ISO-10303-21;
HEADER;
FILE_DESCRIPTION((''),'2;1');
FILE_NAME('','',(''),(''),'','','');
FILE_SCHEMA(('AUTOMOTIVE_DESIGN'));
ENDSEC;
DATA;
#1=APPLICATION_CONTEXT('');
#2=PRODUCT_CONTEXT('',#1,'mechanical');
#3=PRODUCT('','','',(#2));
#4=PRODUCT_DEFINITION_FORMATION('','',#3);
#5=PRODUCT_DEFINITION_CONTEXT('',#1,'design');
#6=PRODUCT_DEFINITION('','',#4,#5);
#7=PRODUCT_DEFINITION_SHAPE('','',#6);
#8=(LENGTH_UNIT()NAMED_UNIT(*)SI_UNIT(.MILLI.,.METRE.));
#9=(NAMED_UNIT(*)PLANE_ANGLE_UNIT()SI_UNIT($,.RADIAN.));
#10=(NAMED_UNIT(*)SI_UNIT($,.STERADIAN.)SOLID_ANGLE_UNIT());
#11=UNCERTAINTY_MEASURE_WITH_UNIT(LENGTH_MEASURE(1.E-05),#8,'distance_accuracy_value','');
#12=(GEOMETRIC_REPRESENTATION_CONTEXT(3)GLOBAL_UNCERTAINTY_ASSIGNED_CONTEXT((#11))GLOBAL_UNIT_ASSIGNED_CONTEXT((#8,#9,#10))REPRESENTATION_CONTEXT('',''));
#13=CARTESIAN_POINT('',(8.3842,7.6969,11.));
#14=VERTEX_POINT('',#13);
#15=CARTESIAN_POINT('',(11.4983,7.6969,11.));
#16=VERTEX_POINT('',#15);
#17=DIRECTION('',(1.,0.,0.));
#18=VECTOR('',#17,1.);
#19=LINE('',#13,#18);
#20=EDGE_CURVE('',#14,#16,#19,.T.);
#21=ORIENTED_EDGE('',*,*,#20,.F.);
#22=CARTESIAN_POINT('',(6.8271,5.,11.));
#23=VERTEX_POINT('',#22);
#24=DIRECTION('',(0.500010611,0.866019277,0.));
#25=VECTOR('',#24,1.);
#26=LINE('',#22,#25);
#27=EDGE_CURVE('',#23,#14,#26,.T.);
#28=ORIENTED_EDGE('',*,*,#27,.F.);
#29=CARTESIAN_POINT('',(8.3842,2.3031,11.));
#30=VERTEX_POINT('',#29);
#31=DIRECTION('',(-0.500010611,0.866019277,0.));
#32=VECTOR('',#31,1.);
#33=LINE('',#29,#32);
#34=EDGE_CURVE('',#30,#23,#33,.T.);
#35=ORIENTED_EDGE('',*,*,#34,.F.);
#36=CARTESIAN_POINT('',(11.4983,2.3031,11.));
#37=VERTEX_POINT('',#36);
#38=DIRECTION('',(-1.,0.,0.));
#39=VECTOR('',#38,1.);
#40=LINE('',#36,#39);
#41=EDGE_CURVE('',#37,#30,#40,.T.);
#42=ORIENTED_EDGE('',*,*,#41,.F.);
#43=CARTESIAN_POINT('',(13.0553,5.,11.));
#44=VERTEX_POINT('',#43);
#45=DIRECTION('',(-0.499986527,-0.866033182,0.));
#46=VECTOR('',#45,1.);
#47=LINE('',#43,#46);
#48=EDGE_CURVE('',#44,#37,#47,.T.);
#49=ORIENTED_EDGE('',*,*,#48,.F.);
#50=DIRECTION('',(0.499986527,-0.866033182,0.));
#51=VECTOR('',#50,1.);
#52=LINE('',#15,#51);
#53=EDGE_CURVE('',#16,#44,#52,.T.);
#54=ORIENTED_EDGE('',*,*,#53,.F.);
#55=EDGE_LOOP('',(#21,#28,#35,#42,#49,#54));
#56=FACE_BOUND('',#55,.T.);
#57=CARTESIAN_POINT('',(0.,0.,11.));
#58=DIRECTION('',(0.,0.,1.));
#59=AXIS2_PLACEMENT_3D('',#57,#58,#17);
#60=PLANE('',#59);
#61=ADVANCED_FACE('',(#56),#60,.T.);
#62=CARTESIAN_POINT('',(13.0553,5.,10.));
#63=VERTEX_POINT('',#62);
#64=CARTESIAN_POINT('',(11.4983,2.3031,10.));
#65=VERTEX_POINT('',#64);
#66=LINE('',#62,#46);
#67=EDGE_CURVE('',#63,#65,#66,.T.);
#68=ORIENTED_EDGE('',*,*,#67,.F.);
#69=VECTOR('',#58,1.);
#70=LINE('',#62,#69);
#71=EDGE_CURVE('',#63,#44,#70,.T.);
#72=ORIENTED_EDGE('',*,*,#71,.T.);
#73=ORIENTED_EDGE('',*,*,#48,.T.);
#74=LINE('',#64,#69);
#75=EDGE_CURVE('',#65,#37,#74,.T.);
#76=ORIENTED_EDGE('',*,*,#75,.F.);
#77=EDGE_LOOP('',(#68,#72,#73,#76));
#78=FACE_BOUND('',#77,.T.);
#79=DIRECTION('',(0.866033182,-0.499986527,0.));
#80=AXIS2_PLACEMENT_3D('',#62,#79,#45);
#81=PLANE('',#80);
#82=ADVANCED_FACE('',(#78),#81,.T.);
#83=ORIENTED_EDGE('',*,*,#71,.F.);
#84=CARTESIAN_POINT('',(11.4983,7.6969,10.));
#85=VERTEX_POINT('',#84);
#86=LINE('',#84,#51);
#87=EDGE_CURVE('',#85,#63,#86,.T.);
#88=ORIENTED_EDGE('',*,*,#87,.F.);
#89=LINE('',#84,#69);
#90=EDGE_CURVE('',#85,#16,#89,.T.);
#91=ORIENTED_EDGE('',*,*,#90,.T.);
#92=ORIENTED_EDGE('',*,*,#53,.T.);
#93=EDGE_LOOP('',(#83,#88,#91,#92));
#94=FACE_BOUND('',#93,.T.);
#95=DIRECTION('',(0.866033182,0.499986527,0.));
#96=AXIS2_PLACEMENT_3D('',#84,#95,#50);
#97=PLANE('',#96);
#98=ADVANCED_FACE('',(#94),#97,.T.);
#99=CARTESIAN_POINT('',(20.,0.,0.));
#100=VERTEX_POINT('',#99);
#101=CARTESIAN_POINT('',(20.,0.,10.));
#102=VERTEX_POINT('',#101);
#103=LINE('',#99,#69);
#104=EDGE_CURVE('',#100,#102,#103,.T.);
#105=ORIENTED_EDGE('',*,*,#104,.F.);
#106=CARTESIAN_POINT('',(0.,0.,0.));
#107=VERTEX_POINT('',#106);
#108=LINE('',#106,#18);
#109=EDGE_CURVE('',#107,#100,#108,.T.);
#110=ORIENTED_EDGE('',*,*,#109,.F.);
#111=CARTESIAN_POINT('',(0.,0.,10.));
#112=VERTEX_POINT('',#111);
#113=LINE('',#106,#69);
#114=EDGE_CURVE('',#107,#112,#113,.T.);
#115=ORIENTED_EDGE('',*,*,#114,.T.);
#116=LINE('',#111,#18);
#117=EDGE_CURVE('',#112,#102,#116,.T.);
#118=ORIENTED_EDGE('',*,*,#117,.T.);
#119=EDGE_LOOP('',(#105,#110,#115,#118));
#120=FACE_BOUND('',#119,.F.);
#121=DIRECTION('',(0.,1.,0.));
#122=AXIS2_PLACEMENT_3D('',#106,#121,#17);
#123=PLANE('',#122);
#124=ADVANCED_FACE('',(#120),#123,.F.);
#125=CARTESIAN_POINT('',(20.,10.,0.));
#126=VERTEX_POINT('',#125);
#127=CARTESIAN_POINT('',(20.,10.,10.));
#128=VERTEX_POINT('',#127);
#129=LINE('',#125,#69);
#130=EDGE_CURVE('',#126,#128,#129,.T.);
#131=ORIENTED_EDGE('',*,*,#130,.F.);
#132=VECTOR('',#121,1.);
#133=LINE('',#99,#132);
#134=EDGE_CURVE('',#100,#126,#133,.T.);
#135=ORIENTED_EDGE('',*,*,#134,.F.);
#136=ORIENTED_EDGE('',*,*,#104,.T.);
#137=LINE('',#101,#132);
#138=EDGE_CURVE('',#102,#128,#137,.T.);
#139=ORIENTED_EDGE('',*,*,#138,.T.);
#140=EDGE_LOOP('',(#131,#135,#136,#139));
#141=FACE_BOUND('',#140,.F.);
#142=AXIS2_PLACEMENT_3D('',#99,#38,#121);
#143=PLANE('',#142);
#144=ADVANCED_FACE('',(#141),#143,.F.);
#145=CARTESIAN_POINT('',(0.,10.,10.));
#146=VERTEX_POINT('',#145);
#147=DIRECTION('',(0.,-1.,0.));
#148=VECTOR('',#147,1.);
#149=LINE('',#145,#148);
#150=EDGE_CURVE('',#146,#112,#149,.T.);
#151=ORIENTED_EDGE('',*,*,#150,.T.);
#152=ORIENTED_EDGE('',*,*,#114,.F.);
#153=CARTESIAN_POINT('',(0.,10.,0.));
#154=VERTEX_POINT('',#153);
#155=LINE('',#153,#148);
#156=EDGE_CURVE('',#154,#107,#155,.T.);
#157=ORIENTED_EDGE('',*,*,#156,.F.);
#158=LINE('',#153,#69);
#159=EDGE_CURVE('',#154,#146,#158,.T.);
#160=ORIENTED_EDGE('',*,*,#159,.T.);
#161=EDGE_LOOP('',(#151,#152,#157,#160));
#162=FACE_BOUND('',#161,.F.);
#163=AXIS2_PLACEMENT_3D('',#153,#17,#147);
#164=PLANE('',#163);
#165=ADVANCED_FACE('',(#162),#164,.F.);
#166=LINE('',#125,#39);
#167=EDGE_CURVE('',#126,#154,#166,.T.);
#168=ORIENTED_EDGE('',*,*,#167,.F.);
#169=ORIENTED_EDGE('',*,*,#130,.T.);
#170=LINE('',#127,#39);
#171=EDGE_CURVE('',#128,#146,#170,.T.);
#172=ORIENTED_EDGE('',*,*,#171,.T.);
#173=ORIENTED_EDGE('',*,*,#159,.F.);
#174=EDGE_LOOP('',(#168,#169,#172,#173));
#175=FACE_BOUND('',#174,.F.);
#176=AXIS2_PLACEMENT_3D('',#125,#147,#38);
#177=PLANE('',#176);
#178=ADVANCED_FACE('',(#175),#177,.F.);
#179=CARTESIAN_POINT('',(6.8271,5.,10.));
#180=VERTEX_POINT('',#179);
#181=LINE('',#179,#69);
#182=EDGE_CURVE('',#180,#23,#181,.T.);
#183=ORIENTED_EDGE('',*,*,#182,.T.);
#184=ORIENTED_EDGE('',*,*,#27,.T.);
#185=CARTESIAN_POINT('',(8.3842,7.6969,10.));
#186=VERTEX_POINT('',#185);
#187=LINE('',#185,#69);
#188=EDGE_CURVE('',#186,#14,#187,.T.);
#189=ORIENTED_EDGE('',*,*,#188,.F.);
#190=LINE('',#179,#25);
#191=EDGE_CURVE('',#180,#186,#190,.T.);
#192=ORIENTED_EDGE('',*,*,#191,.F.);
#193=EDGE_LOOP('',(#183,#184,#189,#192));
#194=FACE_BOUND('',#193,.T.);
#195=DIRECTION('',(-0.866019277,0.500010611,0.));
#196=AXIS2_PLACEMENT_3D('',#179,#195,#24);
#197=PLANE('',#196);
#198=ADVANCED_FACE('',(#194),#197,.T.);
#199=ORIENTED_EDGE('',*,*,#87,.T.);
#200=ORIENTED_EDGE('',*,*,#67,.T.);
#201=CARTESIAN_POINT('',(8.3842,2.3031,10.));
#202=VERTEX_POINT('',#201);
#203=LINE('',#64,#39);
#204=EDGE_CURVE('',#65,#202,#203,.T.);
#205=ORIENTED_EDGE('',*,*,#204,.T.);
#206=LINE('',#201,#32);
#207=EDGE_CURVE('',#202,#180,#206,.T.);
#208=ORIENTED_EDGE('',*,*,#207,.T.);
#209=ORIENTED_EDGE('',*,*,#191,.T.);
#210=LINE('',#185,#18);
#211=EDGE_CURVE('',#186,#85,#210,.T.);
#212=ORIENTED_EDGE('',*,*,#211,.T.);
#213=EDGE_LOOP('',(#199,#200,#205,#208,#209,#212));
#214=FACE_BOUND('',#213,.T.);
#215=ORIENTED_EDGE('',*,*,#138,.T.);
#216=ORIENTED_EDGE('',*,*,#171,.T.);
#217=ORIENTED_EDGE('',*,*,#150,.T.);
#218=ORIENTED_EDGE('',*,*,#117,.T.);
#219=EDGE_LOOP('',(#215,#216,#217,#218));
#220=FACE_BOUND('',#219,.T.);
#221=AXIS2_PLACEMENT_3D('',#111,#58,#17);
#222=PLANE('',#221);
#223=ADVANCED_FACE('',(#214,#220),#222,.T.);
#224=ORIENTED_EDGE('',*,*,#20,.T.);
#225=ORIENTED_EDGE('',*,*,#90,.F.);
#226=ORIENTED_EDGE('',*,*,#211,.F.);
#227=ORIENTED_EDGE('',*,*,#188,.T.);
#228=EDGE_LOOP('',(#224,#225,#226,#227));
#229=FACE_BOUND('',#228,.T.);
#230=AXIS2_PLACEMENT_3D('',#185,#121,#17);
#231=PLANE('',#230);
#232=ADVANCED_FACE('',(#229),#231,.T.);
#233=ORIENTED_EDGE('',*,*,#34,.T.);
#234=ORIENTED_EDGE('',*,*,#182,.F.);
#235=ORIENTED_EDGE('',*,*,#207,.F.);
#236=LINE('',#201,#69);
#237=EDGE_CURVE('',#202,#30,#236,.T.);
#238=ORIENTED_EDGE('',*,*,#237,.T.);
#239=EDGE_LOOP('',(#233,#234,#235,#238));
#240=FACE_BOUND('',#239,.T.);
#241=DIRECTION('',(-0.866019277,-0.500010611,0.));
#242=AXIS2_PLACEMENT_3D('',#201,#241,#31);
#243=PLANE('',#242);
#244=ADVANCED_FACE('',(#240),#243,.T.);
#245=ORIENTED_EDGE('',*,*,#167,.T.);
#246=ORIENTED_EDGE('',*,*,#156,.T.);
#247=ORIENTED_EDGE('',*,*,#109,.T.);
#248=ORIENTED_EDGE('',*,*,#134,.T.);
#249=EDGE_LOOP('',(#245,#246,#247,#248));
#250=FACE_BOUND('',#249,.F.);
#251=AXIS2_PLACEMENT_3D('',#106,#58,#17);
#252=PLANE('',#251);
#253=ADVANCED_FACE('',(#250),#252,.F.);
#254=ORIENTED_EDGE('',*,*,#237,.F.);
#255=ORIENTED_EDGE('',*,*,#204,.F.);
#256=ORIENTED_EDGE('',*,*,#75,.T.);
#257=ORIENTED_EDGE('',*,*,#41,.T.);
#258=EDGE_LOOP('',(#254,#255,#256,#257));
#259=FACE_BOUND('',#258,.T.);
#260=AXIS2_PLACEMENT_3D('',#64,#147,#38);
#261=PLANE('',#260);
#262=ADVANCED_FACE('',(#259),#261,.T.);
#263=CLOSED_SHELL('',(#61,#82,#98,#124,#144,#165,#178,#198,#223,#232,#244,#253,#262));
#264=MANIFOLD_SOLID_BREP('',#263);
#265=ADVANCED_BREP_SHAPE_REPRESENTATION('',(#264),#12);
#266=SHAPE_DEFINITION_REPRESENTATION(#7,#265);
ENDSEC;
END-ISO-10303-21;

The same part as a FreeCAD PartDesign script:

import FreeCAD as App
import Part
import Sketcher
Q = App.Units.Quantity

doc = App.newDocument("Part")
params = doc.addObject("Spreadsheet::Sheet", "Params")
for row, (alias, value) in enumerate([
    ("sketch1_width", "20 mm"),
    ("sketch1_height", "10 mm"),
    ("pad1_length", "10 mm"),
    ("pad2_length", "1 mm"),
], start=1):
    params.set(f"A{row}", alias)
    params.set(f"B{row}", "=" + value)
    params.setAlias(f"B{row}", alias)

body = doc.addObject("PartDesign::Body", "Body")

# Sketch on XY plane
sketch1 = body.newObject("Sketcher::SketchObject", "Sketch")
sketch1.AttachmentSupport = (doc.getObject("XY_Plane"), [""])
sketch1.MapMode = "FlatFace"
sketch1.addGeometry(Part.LineSegment(App.Vector(0, 10, 0), App.Vector(0, 0, 0)), False)
sketch1.addGeometry(Part.LineSegment(App.Vector(0, 0, 0), App.Vector(20, 0, 0)), False)
sketch1.addGeometry(Part.LineSegment(App.Vector(20, 0, 0), App.Vector(20, 10, 0)), False)
sketch1.addGeometry(Part.LineSegment(App.Vector(20, 10, 0), App.Vector(0, 10, 0)), False)
sketch1.addConstraint(Sketcher.Constraint("Coincident", 0, 2, 1, 1))
sketch1.addConstraint(Sketcher.Constraint("Coincident", 1, 2, 2, 1))
sketch1.addConstraint(Sketcher.Constraint("Coincident", 2, 2, 3, 1))
sketch1.addConstraint(Sketcher.Constraint("Coincident", 3, 2, 0, 1))
sketch1.addConstraint(Sketcher.Constraint("Vertical", 0))
sketch1.addConstraint(Sketcher.Constraint("Horizontal", 1))
sketch1.addConstraint(Sketcher.Constraint("Vertical", 2))
sketch1.addConstraint(Sketcher.Constraint("Horizontal", 3))
sketch1.addConstraint(Sketcher.Constraint("Coincident", 0, 2, -1, 1))
sketch1.addConstraint(Sketcher.Constraint("DistanceX", 1, 1, 1, 2, Q("20 mm")))
sketch1.addConstraint(Sketcher.Constraint("DistanceY", 0, 2, 0, 1, Q("10 mm")))
sketch1.setExpression("Constraints[9]", "Params.sketch1_width")
sketch1.setExpression("Constraints[10]", "Params.sketch1_height")
pad1 = body.newObject("PartDesign::Pad", "Pad")
pad1.Profile = sketch1
pad1.setExpression("Length", "Params.pad1_length")

# Sketch on XY plane
sketch2 = body.newObject("Sketcher::SketchObject", "Sketch001")
sketch2.AttachmentSupport = (doc.getObject("XY_Plane"), [""])
sketch2.MapMode = "FlatFace"
sketch2.AttachmentOffset = App.Placement(App.Vector(0, 0, 10), App.Rotation())
sketch2.addGeometry(Part.LineSegment(App.Vector(8.3842, 7.6969, 0), App.Vector(6.8271, 5, 0)), False)
sketch2.addGeometry(Part.LineSegment(App.Vector(6.8271, 5, 0), App.Vector(8.3842, 2.3031, 0)), False)
sketch2.addGeometry(Part.LineSegment(App.Vector(8.3842, 2.3031, 0), App.Vector(11.4983, 2.3031, 0)), False)
sketch2.addGeometry(Part.LineSegment(App.Vector(11.4983, 2.3031, 0), App.Vector(13.0553, 5, 0)), False)
sketch2.addGeometry(Part.LineSegment(App.Vector(13.0553, 5, 0), App.Vector(11.4983, 7.6969, 0)), False)
sketch2.addGeometry(Part.LineSegment(App.Vector(11.4983, 7.6969, 0), App.Vector(8.3842, 7.6969, 0)), False)
sketch2.addConstraint(Sketcher.Constraint("Coincident", 0, 2, 1, 1))
sketch2.addConstraint(Sketcher.Constraint("Coincident", 1, 2, 2, 1))
sketch2.addConstraint(Sketcher.Constraint("Coincident", 2, 2, 3, 1))
sketch2.addConstraint(Sketcher.Constraint("Coincident", 3, 2, 4, 1))
sketch2.addConstraint(Sketcher.Constraint("Coincident", 4, 2, 5, 1))
sketch2.addConstraint(Sketcher.Constraint("Coincident", 5, 2, 0, 1))
sketch2.addConstraint(Sketcher.Constraint("Horizontal", 2))
sketch2.addConstraint(Sketcher.Constraint("Horizontal", 5))
sketch2.addConstraint(Sketcher.Constraint("Parallel", 0, 3))
sketch2.addConstraint(Sketcher.Constraint("Parallel", 1, 4))
sketch2.addConstraint(Sketcher.Constraint("Horizontal", 0, 2, 3, 2))
sketch2.addConstraint(Sketcher.Constraint("Vertical", 2, 2, 4, 2))
sketch2.addConstraint(Sketcher.Constraint("Vertical", 1, 2, 5, 2))
sketch2.addConstraint(Sketcher.Constraint("Angle", 0, Q("-120.0007 deg")))
sketch2.addConstraint(Sketcher.Constraint("DistanceY", -1, 1, 0, 2, Q("5 mm")))
sketch2.addConstraint(Sketcher.Constraint("DistanceX", 2, 1, 2, 2, Q("3.114 mm")))
sketch2.addConstraint(Sketcher.Constraint("Distance", 3, Q("3.114 mm")))
sketch2.addConstraint(Sketcher.Constraint("DistanceX", -1, 1, 0, 2, Q("6.827 mm")))
pad2 = body.newObject("PartDesign::Pad", "Pad001")
pad2.Profile = sketch2
pad2.setExpression("Length", "Params.pad2_length")

doc.recompute()
